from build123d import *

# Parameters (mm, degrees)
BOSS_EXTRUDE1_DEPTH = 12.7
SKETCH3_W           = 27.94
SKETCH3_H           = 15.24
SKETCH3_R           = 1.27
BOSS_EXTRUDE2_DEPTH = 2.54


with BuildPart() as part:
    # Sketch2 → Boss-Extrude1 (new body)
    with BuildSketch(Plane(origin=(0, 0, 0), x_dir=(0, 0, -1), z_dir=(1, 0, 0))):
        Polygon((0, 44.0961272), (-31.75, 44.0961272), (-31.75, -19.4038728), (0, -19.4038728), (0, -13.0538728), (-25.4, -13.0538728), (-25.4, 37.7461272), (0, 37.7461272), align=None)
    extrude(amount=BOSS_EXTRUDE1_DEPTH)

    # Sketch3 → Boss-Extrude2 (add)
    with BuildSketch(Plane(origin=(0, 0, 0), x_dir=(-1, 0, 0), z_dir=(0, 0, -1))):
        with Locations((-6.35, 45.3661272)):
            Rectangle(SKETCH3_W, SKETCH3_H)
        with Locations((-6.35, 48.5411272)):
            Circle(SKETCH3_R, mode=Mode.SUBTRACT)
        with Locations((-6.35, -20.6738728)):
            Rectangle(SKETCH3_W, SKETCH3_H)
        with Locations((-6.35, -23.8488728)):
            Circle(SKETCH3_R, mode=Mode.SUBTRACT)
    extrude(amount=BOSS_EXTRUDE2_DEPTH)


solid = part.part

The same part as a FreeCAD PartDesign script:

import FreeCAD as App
import Part
import Sketcher
from FreeCAD import Vector
Q = App.Units.Quantity

doc = App.newDocument("Part")
body = doc.addObject("PartDesign::Body", "Body")

# Sketch on YZ plane
sketch1 = doc.addObject("Sketcher::SketchObject", "Sketch")
body.addObject(sketch1)
sketch1.AttachmentSupport = (doc.YZ_Plane, [""])
sketch1.MapMode = "FlatFace"
sketch1.addGeometry([
    Part.LineSegment(Vector(44.096127, 0, 0), Vector(44.096127, 31.75, 0)),  # 0
    Part.LineSegment(Vector(44.096127, 31.75, 0), Vector(-19.403873, 31.75, 0)),  # 1
    Part.LineSegment(Vector(-19.403873, 31.75, 0), Vector(-19.403873, 0, 0)),  # 2
    Part.LineSegment(Vector(-19.403873, 0, 0), Vector(-13.053873, 0, 0)),  # 3
    Part.LineSegment(Vector(-13.053873, 0, 0), Vector(-13.053873, 25.4, 0)),  # 4
    Part.LineSegment(Vector(-13.053873, 25.4, 0), Vector(37.746127, 25.4, 0)),  # 5
    Part.LineSegment(Vector(37.746127, 25.4, 0), Vector(37.746127, 0, 0)),  # 6
    Part.LineSegment(Vector(37.746127, 0, 0), Vector(44.096127, 0, 0)),  # 7
], False)
sketch1.addConstraint([
    Sketcher.Constraint("Coincident", 0, 2, 1, 1),
    Sketcher.Constraint("Coincident", 1, 2, 2, 1),
    Sketcher.Constraint("Coincident", 2, 2, 3, 1),
    Sketcher.Constraint("Coincident", 3, 2, 4, 1),
    Sketcher.Constraint("Coincident", 4, 2, 5, 1),
    Sketcher.Constraint("Coincident", 5, 2, 6, 1),
    Sketcher.Constraint("Coincident", 6, 2, 7, 1),
    Sketcher.Constraint("Coincident", 7, 2, 0, 1),
    Sketcher.Constraint("Vertical", 0),
    Sketcher.Constraint("Horizontal", 1),
    Sketcher.Constraint("Vertical", 2),
    Sketcher.Constraint("Horizontal", 3),
    Sketcher.Constraint("Vertical", 4),
    Sketcher.Constraint("Horizontal", 5),
    Sketcher.Constraint("Vertical", 6),
    Sketcher.Constraint("Horizontal", 7),
    Sketcher.Constraint("PointOnObject", 2, 2, -1),
    Sketcher.Constraint("PointOnObject", 6, 2, -1),
    Sketcher.Constraint("Equal", 3, 7),
    Sketcher.Constraint("DistanceX", 5, 1, 5, 2, Q("2 in")),
    Sketcher.Constraint("DistanceY", 4, 1, 4, 2, Q("1 in")),
    Sketcher.Constraint("DistanceX", 1, 2, 1, 1, Q("2.5 in")),
    Sketcher.Constraint("DistanceY", 0, 1, 0, 2, Q("1.25 in")),
    Sketcher.Constraint("DistanceX", -1, 1, 0, 2, Q("44.096127 mm")),
])
pad1 = doc.addObject("PartDesign::Pad", "Pad")
body.addObject(pad1)
pad1.Profile = sketch1
pad1.Length = Q("0.5 in")

# Sketch on XY plane
sketch2 = doc.addObject("Sketcher::SketchObject", "Sketch001")
body.addObject(sketch2)
sketch2.AttachmentSupport = (doc.XY_Plane, [""])
sketch2.MapMode = "FlatFace"
sketch2.addGeometry([
    Part.LineSegment(Vector(20.32, 52.986127, 0), Vector(20.32, 37.746127, 0)),  # 0
    Part.LineSegment(Vector(20.32, 37.746127, 0), Vector(-7.62, 37.746127, 0)),  # 1
    Part.LineSegment(Vector(-7.62, 37.746127, 0), Vector(-7.62, 52.986127, 0)),  # 2
    Part.LineSegment(Vector(-7.62, 52.986127, 0), Vector(20.32, 52.986127, 0)),  # 3
    Part.Circle(Vector(6.35, 48.541127, 0), Vector(0, 0, 1), 1.27),  # 4
    Part.LineSegment(Vector(20.32, -13.053873, 0), Vector(20.32, -28.293873, 0)),  # 5
    Part.LineSegment(Vector(20.32, -28.293873, 0), Vector(-7.62, -28.293873, 0)),  # 6
    Part.LineSegment(Vector(-7.62, -28.293873, 0), Vector(-7.62, -13.053873, 0)),  # 7
    Part.LineSegment(Vector(-7.62, -13.053873, 0), Vector(20.32, -13.053873, 0)),  # 8
    Part.Circle(Vector(6.35, -23.848873, 0), Vector(0, 0, 1), 1.27),  # 9
], False)
sketch2.addConstraint([
    Sketcher.Constraint("Coincident", 0, 2, 1, 1),
    Sketcher.Constraint("Coincident", 1, 2, 2, 1),
    Sketcher.Constraint("Coincident", 2, 2, 3, 1),
    Sketcher.Constraint("Coincident", 3, 2, 0, 1),
    Sketcher.Constraint("Coincident", 5, 2, 6, 1),
    Sketcher.Constraint("Coincident", 6, 2, 7, 1),
    Sketcher.Constraint("Coincident", 7, 2, 8, 1),
    Sketcher.Constraint("Coincident", 8, 2, 5, 1),
    Sketcher.Constraint("Vertical", 0),
    Sketcher.Constraint("Horizontal", 1),
    Sketcher.Constraint("Vertical", 2),
    Sketcher.Constraint("Horizontal", 3),
    Sketcher.Constraint("Vertical", 5),
    Sketcher.Constraint("Horizontal", 6),
    Sketcher.Constraint("Vertical", 7),
    Sketcher.Constraint("Horizontal", 8),
    Sketcher.Constraint("Equal", 4, 9),
    Sketcher.Constraint("Vertical", 4, 3, 9, 3),
    Sketcher.Constraint("Vertical", 3, 2, 5, 2),
    Sketcher.Constraint("Vertical", 2, 2, 6, 2),
    Sketcher.Constraint("Equal", 2, 5),
    Sketcher.Constraint("Diameter", 4, Q("0.1 in")),
    Sketcher.Constraint("DistanceX", 1, 2, 1, 1, Q("1.1 in")),
    Sketcher.Constraint("DistanceY", 0, 2, 0, 1, Q("0.6 in")),
    Sketcher.Constraint("DistanceY", 7, 2, 1, 2, Q("2 in")),
    Sketcher.Constraint("DistanceX", -1, 1, 0, 2, Q("0.8 in")),
    Sketcher.Constraint("DistanceX", -1, 1, 4, 3, Q("0.25 in")),
    Sketcher.Constraint("DistanceY", 9, 3, 4, 3, Q("2.85 in")),
    Sketcher.Constraint("DistanceY", 0, 2, 4, 3, Q("0.425 in")),
    Sketcher.Constraint("DistanceY", -1, 1, 4, 3, Q("48.541127 mm")),
])
pad2 = doc.addObject("PartDesign::Pad", "Pad001")
body.addObject(pad2)
pad2.Profile = sketch2
pad2.Length = Q("0.1 in")
pad2.Reversed = True

doc.recompute()
